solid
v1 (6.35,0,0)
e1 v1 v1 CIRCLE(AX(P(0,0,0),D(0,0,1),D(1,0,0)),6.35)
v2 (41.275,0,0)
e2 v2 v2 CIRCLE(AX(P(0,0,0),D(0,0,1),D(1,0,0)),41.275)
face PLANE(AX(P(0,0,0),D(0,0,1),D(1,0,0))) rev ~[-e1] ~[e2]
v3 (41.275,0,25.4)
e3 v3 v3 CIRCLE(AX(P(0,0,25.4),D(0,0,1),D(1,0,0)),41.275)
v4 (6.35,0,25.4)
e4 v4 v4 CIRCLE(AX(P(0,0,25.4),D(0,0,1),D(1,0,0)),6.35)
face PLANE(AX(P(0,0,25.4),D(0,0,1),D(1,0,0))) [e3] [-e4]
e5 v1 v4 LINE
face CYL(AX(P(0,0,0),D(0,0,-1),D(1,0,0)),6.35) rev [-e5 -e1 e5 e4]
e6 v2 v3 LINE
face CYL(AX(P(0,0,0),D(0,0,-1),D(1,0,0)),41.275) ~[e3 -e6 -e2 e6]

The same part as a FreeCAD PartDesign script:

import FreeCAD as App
import Part
import Sketcher

V = App.Vector
Q = App.Units.Quantity

doc = App.newDocument("Part")
body = doc.addObject("PartDesign::Body", "Body")

sketch1 = body.newObject("Sketcher::SketchObject", "Sketch")
sketch1.AttachmentSupport = (doc.getObject("XY_Plane"), [""])
sketch1.MapMode = "FlatFace"
sketch1.addGeometry([
    Part.Circle(V(0, 0, 0), V(0, 0, 1), 41),
    Part.Circle(V(0, 0, 0), V(0, 0, 1), 6),
], False)
sketch1.addConstraint([
    Sketcher.Constraint("Coincident", 0, 3, -1, 1),
    Sketcher.Constraint("Coincident", 1, 3, -1, 1),
    Sketcher.Constraint("Diameter", 1, Q("0.5 in")),
    Sketcher.Constraint("Diameter", 0, Q("3.25 in")),
])
pad1 = body.newObject("PartDesign::Pad", "Pad")
pad1.Profile = sketch1
pad1.Length = Q("1 in")

doc.recompute()
